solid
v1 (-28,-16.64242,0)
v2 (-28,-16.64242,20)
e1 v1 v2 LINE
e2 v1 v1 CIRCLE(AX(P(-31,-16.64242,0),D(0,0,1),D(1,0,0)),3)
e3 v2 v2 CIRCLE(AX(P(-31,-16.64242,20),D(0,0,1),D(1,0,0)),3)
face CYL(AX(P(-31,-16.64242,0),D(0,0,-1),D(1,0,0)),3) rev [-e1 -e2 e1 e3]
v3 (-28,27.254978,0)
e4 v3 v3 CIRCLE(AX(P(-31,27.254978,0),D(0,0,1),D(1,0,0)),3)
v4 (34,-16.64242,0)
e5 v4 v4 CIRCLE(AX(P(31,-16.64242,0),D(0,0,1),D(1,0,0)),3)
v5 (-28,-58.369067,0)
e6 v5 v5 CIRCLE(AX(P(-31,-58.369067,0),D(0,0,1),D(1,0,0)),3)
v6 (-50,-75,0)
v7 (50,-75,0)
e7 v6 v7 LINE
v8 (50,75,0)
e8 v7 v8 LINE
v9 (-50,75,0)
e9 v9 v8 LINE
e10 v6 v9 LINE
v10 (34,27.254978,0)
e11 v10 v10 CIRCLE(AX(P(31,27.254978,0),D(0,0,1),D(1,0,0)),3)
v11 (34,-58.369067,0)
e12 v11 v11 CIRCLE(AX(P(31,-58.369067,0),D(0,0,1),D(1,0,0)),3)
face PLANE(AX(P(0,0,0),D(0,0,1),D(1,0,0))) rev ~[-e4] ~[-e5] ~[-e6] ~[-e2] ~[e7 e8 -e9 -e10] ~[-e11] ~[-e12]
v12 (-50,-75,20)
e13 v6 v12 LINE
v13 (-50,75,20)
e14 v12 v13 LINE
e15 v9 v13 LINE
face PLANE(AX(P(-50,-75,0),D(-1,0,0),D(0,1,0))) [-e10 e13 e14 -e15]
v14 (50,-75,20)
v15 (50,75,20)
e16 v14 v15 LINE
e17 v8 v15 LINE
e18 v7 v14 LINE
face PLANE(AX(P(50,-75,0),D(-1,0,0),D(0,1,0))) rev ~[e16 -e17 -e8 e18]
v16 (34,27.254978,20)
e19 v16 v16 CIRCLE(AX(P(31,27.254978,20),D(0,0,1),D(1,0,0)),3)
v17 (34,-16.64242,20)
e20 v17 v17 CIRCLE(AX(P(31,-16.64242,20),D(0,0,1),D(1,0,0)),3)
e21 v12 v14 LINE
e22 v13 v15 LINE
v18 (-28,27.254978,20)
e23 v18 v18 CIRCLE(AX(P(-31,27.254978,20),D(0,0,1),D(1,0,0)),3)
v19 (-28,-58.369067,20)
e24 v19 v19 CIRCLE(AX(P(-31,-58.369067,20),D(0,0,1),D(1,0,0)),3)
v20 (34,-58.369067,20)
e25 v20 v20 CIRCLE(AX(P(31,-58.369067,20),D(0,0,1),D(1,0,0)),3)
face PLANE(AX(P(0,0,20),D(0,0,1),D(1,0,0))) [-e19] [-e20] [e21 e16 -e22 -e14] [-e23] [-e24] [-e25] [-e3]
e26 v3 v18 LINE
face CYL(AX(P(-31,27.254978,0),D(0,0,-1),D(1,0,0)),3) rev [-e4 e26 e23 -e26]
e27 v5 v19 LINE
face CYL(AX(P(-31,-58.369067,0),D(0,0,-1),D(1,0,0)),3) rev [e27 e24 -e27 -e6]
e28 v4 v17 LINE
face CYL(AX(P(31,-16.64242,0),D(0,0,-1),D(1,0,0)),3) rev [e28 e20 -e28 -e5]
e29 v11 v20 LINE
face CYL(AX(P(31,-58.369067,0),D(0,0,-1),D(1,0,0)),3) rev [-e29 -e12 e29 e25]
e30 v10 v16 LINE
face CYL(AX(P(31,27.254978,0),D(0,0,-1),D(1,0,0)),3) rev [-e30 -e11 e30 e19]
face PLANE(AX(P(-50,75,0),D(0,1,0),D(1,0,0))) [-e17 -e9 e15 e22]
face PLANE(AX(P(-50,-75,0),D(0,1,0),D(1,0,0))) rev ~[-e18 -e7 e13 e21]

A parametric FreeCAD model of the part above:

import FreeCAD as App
import Part
import Sketcher


def add_polygon(sketch, points):
    """Adds a closed chain of lines whose ends are joined by coincident constraints."""
    first, n = sketch.GeometryCount, len(points)
    for a, b in zip(points, points[1:] + points[:1]):
        sketch.addGeometry(Part.LineSegment(App.Vector(*a, 0), App.Vector(*b, 0)), False)
    for i in range(n):
        sketch.addConstraint(Sketcher.Constraint("Coincident", first + i, 2, first + (i + 1) % n, 1))

doc = App.newDocument("Part")
body = doc.addObject("PartDesign::Body", "Body")

# Sketch on XY plane
sketch1 = body.newObject("Sketcher::SketchObject", "Sketch")
sketch1.AttachmentSupport = (doc.getObject("XY_Plane"), [""])
sketch1.MapMode = "FlatFace"
add_polygon(sketch1, [(-50, 75), (-50, -75), (50, -75), (50, 75)])  # lines 0-3
sketch1.addGeometry(Part.Circle(App.Vector(-31, -58.4, 0), App.Vector(0, 0, 1), 3), False)  # 4
sketch1.addGeometry(Part.Circle(App.Vector(-31, -16.6, 0), App.Vector(0, 0, 1), 3), False)  # 5
sketch1.addGeometry(Part.Circle(App.Vector(31, -58.4, 0), App.Vector(0, 0, 1), 3), False)  # 6
sketch1.addGeometry(Part.Circle(App.Vector(31, -16.6, 0), App.Vector(0, 0, 1), 3), False)  # 7
sketch1.addGeometry(Part.Circle(App.Vector(-31, 27.3, 0), App.Vector(0, 0, 1), 3), False)  # 8
sketch1.addGeometry(Part.Circle(App.Vector(31, 27.3, 0), App.Vector(0, 0, 1), 3), False)  # 9
sketch1.addConstraint([
    Sketcher.Constraint("Vertical", 0),
    Sketcher.Constraint("Horizontal", 1),
    Sketcher.Constraint("Vertical", 2),
    Sketcher.Constraint("Horizontal", 3),
    Sketcher.Constraint("Equal", 4, 5),
    Sketcher.Constraint("Equal", 5, 6),
    Sketcher.Constraint("Equal", 6, 7),
    Sketcher.Constraint("Equal", 7, 8),
    Sketcher.Constraint("Equal", 8, 9),
    Sketcher.Constraint("Symmetric", 0, 2, 2, 2, -1, 1),
    Sketcher.Constraint("Symmetric", 4, 3, 6, 3, -2),
    Sketcher.Constraint("Symmetric", 5, 3, 7, 3, -2),
    Sketcher.Constraint("Symmetric", 8, 3, 9, 3, -2),
    Sketcher.Constraint("Vertical", 4, 3, 5, 3),
    Sketcher.Constraint("Vertical", 5, 3, 8, 3),
    Sketcher.Constraint("Diameter", 4, 6.0),
    Sketcher.Constraint("DistanceX", 1, 1, 1, 2, 100.0),
    Sketcher.Constraint("DistanceY", 0, 2, 0, 1, 150.0),
    Sketcher.Constraint("DistanceX", 4, 3, -1, 1, 31.0),
    Sketcher.Constraint("DistanceY", 5, 3, 8, 3, 43.897398),
    Sketcher.Constraint("DistanceY", 5, 3, -1, 1, 16.64242),
    Sketcher.Constraint("DistanceY", 4, 3, -1, 1, 58.369067),
])
pad1 = body.newObject("PartDesign::Pad", "Pad")
pad1.Profile = sketch1
pad1.Length = 20

doc.recompute()
